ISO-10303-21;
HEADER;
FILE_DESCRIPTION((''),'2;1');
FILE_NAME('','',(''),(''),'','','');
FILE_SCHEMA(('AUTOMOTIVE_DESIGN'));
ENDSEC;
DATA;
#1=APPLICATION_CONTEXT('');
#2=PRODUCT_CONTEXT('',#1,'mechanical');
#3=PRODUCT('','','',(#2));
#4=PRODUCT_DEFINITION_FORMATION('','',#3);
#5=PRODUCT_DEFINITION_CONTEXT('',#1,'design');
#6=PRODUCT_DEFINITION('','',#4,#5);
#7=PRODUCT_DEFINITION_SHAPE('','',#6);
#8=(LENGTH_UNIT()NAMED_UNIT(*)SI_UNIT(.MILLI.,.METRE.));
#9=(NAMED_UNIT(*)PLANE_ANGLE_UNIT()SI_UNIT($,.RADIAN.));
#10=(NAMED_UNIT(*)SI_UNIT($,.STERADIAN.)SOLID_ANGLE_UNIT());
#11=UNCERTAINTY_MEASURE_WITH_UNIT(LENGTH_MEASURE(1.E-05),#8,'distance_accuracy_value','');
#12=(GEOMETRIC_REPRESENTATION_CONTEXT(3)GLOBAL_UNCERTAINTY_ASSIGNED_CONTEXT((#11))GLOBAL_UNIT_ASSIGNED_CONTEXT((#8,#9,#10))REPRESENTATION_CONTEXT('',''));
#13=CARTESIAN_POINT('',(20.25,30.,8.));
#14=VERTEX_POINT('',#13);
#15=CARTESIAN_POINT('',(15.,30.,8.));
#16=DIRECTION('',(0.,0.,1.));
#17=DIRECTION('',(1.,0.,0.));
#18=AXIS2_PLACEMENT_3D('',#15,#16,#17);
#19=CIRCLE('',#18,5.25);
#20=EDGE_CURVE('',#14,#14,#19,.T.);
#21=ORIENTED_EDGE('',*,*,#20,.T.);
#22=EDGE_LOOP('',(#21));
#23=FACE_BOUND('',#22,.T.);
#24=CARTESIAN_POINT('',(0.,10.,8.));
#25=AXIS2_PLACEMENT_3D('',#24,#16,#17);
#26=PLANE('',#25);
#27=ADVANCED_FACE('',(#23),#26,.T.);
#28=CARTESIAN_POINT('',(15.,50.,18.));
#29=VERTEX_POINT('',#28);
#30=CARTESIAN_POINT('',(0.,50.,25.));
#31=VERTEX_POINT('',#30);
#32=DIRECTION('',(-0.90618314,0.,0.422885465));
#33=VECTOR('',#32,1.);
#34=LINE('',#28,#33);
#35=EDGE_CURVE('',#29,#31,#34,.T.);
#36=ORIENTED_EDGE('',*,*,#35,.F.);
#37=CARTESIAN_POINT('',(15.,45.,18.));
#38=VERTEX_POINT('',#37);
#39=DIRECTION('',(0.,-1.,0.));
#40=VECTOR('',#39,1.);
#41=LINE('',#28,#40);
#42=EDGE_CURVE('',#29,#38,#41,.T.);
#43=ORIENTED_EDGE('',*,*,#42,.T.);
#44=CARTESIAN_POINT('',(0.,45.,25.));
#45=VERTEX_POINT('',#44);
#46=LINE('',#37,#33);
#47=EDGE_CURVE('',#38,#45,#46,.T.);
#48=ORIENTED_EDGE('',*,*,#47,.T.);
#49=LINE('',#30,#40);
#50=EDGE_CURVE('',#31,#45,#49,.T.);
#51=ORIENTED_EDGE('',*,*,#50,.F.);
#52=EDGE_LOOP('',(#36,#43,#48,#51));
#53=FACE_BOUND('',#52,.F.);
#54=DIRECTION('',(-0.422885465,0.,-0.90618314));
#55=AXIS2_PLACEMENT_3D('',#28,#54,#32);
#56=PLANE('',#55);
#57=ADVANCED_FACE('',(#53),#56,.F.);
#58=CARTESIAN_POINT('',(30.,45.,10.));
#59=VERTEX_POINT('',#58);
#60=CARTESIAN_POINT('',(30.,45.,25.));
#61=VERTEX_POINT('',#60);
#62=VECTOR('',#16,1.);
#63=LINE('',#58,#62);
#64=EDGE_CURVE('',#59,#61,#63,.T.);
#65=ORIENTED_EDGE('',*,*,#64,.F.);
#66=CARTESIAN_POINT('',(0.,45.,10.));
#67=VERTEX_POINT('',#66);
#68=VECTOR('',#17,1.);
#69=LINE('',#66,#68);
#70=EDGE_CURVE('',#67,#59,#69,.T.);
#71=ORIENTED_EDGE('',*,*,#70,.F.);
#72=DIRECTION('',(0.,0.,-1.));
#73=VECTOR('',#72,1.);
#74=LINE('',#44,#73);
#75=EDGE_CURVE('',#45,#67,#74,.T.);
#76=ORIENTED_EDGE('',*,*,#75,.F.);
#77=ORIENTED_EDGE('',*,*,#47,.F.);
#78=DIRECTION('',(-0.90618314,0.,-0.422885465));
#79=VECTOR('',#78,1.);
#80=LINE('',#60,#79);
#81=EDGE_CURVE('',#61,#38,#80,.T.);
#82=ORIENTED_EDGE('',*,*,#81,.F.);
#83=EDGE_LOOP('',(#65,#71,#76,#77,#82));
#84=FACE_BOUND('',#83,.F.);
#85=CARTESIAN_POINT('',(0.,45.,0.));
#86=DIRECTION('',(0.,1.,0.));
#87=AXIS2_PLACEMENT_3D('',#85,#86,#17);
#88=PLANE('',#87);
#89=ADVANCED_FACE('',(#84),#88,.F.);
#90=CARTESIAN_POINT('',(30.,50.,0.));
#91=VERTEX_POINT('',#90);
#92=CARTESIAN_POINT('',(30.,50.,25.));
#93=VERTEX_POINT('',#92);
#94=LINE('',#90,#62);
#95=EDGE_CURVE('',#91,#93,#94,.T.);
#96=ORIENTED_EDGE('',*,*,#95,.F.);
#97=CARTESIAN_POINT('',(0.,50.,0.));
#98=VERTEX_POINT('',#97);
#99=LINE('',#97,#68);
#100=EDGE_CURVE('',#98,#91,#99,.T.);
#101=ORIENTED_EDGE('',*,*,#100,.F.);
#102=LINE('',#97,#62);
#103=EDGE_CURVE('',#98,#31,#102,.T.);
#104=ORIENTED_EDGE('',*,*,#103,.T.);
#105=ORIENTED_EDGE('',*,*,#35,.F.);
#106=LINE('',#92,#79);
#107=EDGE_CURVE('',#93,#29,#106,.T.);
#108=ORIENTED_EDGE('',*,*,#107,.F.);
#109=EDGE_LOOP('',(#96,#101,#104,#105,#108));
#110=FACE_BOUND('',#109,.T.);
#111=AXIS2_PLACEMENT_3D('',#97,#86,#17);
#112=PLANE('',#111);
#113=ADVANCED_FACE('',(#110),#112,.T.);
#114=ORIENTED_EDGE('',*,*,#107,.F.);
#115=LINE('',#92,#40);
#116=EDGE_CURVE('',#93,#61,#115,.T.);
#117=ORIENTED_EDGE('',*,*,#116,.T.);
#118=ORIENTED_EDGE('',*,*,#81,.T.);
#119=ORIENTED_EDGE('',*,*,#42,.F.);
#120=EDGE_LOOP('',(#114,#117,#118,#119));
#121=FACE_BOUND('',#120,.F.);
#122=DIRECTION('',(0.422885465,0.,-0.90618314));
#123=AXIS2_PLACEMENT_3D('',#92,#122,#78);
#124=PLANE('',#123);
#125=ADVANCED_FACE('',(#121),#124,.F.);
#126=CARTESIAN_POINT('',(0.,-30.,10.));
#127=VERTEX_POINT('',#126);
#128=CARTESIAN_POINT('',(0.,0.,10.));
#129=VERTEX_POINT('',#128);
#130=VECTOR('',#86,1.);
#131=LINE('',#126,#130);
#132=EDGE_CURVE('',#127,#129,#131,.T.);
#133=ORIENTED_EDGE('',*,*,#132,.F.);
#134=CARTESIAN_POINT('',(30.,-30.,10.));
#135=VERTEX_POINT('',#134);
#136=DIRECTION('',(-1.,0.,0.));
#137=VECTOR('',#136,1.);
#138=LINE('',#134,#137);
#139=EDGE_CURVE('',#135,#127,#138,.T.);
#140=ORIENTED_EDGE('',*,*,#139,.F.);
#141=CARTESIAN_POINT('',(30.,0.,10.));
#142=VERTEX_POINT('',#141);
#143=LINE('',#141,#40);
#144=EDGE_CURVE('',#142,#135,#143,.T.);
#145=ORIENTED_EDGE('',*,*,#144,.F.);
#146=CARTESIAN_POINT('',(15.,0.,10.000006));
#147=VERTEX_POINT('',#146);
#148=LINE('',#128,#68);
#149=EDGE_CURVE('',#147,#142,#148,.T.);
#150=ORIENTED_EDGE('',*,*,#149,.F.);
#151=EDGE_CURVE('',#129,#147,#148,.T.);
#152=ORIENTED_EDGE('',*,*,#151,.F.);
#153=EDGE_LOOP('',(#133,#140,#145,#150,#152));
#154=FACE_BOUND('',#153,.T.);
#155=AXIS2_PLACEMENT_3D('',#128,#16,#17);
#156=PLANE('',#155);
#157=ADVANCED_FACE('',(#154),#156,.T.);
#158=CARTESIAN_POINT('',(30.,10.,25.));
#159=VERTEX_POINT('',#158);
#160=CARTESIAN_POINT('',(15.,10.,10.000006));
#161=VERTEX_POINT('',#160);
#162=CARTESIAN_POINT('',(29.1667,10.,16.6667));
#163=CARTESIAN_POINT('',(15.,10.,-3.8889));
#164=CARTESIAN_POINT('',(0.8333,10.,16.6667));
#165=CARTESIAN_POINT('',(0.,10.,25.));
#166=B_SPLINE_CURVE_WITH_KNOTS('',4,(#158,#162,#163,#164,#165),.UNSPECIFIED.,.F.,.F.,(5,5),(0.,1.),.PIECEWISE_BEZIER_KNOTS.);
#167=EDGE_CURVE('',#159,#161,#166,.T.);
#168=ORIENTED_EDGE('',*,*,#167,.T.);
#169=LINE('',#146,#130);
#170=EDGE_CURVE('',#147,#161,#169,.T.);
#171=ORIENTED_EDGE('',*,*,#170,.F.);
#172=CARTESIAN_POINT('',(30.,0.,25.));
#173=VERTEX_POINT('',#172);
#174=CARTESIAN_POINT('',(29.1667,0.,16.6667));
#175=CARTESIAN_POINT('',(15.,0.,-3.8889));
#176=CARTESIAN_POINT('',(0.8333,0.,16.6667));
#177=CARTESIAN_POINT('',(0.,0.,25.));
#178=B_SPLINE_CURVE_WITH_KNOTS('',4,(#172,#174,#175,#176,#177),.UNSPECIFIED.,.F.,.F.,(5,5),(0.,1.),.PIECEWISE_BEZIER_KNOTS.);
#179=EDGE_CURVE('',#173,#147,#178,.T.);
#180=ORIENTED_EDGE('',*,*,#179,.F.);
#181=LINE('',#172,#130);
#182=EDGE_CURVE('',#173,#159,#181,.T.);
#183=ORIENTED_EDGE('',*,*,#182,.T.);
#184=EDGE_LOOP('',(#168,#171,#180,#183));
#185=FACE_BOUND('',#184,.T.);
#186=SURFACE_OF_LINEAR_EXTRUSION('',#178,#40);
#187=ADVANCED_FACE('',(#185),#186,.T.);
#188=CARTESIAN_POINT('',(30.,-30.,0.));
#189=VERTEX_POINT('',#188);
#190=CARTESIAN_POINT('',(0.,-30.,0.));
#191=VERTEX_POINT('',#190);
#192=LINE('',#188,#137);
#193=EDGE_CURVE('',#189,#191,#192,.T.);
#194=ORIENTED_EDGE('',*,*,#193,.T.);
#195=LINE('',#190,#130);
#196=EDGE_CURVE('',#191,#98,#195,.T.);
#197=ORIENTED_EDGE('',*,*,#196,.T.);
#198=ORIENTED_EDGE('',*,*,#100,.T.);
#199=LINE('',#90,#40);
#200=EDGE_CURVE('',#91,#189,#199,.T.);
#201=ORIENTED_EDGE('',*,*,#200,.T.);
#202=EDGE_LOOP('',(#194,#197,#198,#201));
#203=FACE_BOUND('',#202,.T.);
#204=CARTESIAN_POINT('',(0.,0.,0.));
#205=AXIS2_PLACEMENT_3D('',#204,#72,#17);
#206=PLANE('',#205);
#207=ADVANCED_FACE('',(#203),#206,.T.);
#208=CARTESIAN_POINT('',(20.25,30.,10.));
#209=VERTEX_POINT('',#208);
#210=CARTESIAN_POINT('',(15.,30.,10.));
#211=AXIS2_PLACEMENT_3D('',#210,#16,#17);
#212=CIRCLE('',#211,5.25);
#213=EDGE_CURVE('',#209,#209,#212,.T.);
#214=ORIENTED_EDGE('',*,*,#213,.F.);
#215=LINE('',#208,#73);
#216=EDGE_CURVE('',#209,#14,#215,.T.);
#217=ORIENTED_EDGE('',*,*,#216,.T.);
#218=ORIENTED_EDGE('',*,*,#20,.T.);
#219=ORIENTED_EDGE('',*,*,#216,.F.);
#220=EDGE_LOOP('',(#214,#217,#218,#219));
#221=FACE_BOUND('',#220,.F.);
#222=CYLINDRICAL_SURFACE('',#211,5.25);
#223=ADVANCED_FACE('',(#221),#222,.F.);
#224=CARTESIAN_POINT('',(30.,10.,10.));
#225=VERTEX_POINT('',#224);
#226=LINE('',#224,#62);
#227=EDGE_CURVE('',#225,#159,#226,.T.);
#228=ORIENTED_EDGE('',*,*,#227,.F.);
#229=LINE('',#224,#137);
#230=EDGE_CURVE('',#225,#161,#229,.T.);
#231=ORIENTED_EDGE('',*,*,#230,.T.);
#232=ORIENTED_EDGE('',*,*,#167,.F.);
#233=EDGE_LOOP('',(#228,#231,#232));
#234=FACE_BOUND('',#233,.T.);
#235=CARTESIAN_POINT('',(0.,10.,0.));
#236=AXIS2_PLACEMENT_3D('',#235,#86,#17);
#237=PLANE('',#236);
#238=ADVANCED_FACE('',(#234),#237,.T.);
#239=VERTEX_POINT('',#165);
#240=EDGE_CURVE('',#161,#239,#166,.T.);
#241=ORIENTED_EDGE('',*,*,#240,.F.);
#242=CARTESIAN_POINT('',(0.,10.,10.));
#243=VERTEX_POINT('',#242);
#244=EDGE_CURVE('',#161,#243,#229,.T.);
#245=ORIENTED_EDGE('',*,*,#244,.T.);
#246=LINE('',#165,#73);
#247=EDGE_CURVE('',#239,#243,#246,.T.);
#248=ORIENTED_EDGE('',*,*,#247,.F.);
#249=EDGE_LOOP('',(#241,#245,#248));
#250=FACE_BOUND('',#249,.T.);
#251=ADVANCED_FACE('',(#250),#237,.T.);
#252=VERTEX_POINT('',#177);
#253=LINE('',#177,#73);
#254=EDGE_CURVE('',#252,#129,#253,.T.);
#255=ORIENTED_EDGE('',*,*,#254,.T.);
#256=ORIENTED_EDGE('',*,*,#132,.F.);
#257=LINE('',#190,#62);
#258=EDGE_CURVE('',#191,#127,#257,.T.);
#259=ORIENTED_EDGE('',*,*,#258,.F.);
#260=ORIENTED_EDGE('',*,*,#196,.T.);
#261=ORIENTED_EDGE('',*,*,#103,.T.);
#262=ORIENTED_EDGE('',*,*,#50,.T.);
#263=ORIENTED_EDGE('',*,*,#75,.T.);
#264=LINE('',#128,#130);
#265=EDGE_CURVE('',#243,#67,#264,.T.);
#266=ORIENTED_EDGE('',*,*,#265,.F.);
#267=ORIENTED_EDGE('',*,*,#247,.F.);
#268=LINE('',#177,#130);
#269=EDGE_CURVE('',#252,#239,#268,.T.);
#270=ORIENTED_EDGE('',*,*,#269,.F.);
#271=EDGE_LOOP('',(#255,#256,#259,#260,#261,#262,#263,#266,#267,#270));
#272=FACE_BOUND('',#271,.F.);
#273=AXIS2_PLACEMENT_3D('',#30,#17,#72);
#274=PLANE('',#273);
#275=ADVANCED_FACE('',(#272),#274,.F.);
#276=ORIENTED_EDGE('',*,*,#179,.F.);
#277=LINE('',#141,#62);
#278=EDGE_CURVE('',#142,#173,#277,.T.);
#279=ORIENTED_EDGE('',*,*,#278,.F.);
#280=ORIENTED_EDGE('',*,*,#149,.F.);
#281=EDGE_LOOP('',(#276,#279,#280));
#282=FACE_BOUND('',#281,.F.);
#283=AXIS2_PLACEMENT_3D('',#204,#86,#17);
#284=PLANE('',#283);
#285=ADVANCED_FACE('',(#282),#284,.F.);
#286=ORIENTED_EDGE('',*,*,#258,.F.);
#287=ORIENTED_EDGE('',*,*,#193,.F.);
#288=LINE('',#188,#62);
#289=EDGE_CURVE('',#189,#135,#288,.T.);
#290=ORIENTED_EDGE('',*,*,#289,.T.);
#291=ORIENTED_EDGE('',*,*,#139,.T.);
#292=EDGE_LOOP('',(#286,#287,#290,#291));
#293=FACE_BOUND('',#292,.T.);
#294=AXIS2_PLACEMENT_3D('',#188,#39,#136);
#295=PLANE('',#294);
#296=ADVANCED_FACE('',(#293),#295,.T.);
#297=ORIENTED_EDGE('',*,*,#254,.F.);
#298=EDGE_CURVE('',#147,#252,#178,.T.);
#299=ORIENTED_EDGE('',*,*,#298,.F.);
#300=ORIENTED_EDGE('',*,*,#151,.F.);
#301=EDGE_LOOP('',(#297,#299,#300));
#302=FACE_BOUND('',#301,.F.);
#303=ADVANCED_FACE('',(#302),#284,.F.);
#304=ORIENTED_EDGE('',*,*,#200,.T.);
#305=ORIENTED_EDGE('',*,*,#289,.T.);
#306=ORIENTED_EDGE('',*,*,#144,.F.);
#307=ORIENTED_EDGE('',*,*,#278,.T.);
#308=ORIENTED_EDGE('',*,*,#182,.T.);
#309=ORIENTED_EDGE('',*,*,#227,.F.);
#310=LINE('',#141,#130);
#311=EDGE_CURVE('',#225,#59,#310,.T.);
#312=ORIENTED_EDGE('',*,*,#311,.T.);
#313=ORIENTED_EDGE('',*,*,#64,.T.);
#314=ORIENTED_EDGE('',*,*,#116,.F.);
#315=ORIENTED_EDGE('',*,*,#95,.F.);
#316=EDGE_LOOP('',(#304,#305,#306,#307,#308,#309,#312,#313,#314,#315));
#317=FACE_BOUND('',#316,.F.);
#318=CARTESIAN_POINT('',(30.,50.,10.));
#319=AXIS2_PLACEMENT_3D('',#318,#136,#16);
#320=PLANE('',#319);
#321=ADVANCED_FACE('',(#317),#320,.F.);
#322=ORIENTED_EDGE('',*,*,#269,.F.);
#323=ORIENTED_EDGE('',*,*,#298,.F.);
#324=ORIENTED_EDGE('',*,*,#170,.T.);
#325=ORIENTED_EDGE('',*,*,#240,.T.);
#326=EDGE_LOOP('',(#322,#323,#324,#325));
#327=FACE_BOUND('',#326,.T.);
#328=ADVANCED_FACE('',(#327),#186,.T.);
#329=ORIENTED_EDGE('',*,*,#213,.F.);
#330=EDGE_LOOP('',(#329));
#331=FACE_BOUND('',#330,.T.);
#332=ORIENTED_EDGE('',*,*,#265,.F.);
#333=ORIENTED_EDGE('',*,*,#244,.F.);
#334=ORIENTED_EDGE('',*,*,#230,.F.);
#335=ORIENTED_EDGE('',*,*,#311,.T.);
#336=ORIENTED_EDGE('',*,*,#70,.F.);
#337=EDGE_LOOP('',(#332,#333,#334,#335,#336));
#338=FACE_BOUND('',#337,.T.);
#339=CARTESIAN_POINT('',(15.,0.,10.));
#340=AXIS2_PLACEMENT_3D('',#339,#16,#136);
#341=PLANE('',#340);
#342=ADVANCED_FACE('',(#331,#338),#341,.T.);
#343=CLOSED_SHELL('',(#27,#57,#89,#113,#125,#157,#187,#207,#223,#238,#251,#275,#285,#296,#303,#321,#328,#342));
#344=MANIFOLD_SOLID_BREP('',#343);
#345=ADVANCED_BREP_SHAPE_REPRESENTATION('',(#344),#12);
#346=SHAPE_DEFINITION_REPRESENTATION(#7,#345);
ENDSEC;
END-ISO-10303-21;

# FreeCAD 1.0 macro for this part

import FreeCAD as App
import Part
import Sketcher


def add_polygon(sketch, points):
    """Adds a closed chain of lines whose ends are joined by coincident constraints."""
    first, n = sketch.GeometryCount, len(points)
    for a, b in zip(points, points[1:] + points[:1]):
        sketch.addGeometry(Part.LineSegment(App.Vector(*a, 0), App.Vector(*b, 0)), False)
    for i in range(n):
        sketch.addConstraint(Sketcher.Constraint("Coincident", first + i, 2, first + (i + 1) % n, 1))

doc = App.newDocument("Part")
body = doc.addObject("PartDesign::Body", "Body")
body.AllowCompound = True

sketch1 = doc.addObject("Sketcher::SketchObject", "Sketch")
body.addObject(sketch1)
sketch1.AttachmentSupport = (doc.XY_Plane, [""])
sketch1.MapMode = "FlatFace"
add_polygon(sketch1, [(30, 0), (0, 0), (0, -30), (30, -30)])
sketch1.addConstraint([
    Sketcher.Constraint("Horizontal", 0),
    Sketcher.Constraint("Vertical", 1),
    Sketcher.Constraint("Horizontal", 2),
    Sketcher.Constraint("Vertical", 3),
    Sketcher.Constraint("Coincident", 0, 2, -1, 1),
    Sketcher.Constraint("Equal", 2, 1),
    Sketcher.Constraint("DistanceX", 0, 2, 0, 1, 30.0),
])
pad1 = doc.addObject("PartDesign::Pad", "Pad")
body.addObject(pad1)
pad1.Profile = sketch1
pad1.Length = 10

sketch2 = doc.addObject("Sketcher::SketchObject", "Sketch001")
body.addObject(sketch2)
sketch2.AttachmentSupport = (doc.XZ_Plane, [""])
sketch2.MapMode = "FlatFace"
sketch2.addGeometry([
    Part.LineSegment(App.Vector(30, 25, 0), App.Vector(30, 10, 0)),
    Part.LineSegment(App.Vector(30, 10, 0), App.Vector(15, 10, 0)),
    Part.BSplineCurve([App.Vector(30, 25, 0), App.Vector(29.58335, 20.83335, 0), App.Vector(25.83335, 13.611125, 0), App.Vector(20.416675, 10.000012, 0), App.Vector(15, 10.000013, 0)], [5, 5], [0, 0.5], False, 4, [1, 1, 1, 1, 1], False),
    Part.BSplineCurve([App.Vector(15, 10.000013, 0), App.Vector(9.583325, 10.000013, 0), App.Vector(4.16665, 13.611125, 0), App.Vector(0.41665, 20.83335, 0), App.Vector(0, 25, 0)], [5, 5], [0.5, 1], False, 4, [1, 1, 1, 1, 1], False),
    Part.LineSegment(App.Vector(15, 10, 0), App.Vector(0, 10, 0)),
    Part.LineSegment(App.Vector(0, 10, 0), App.Vector(0, 25, 0)),
], False)
sketch2.addConstraint([
    Sketcher.Constraint("Block", 2),
    Sketcher.Constraint("Block", 3),
    Sketcher.Constraint("Coincident", 0, 2, 1, 1),
    Sketcher.Constraint("Coincident", 1, 2, 2, 2),
    Sketcher.Constraint("Coincident", 2, 1, 0, 1),
    Sketcher.Constraint("Coincident", 3, 1, 4, 1),
    Sketcher.Constraint("Coincident", 4, 2, 5, 1),
    Sketcher.Constraint("Coincident", 5, 2, 3, 2),
    Sketcher.Constraint("Vertical", 0),
    Sketcher.Constraint("Horizontal", 1),
    Sketcher.Constraint("Horizontal", 4),
    Sketcher.Constraint("Vertical", 5),
])
pad2 = doc.addObject("PartDesign::Pad", "Pad001")
body.addObject(pad2)
pad2.Profile = sketch2
pad2.Length = 10
pad2.Reversed = True

sketch3 = doc.addObject("Sketcher::SketchObject", "Sketch002")
body.addObject(sketch3)
sketch3.AttachmentSupport = (doc.XZ_Plane, [""])
sketch3.MapMode = "FlatFace"
add_polygon(sketch3, [(30, 0), (0, 0), (0, 10), (30, 10)])
sketch3.addConstraint([
    Sketcher.Constraint("Horizontal", 0),
    Sketcher.Constraint("Vertical", 1),
    Sketcher.Constraint("Horizontal", 2),
    Sketcher.Constraint("Vertical", 3),
    Sketcher.Constraint("Coincident", 0, 2, -1, 1),
    Sketcher.Constraint("DistanceX", 0, 2, 0, 1, 30.0),
    Sketcher.Constraint("DistanceY", 1, 1, 1, 2, 10.0),
])
pad3 = doc.addObject("PartDesign::Pad", "Pad002")
body.addObject(pad3)
pad3.Profile = sketch3
pad3.Length = 50
pad3.Reversed = True

sketch4 = doc.addObject("Sketcher::SketchObject", "Sketch003")
body.addObject(sketch4)
sketch4.AttachmentSupport = (doc.XZ_Plane, [""])
sketch4.MapMode = "FlatFace"
sketch4.AttachmentOffset = App.Placement(App.Vector(0, 0, -50), App.Rotation())
add_polygon(sketch4, [(30, 25), (30, 10), (0, 10), (0, 25), (15, 18)])
sketch4.addConstraint([
    Sketcher.Constraint("Vertical", 0),
    Sketcher.Constraint("Horizontal", 1),
    Sketcher.Constraint("Vertical", 2),
    Sketcher.Constraint("PointOnObject", 1, 2, -2),
    Sketcher.Constraint("Horizontal", 2, 2, 4, 2),
    Sketcher.Constraint("Equal", 3, 4),
    Sketcher.Constraint("DistanceY", 0, 2, 0, 1, 15.0),
    Sketcher.Constraint("DistanceX", -1, 1, 3, 2, 15.0),
    Sketcher.Constraint("DistanceY", 0, 2, 3, 2, 8.0),
    Sketcher.Constraint("DistanceY", -1, 1, 0, 2, 10.0),
])
pad4 = doc.addObject("PartDesign::Pad", "Pad003")
body.addObject(pad4)
pad4.Profile = sketch4
pad4.Length = 5

sketch5 = doc.addObject("Sketcher::SketchObject", "Sketch004")
body.addObject(sketch5)
sketch5.AttachmentSupport = (doc.XY_Plane, [""])
sketch5.MapMode = "FlatFace"
sketch5.AttachmentOffset = App.Placement(App.Vector(0, 0, 10), App.Rotation())
sketch5.addGeometry(Part.Circle(App.Vector(15, 30, 0), App.Vector(0, 0, 1), 5.25), False)
sketch5.addConstraint([
    Sketcher.Constraint("Diameter", 0, 10.5),
    Sketcher.Constraint("DistanceX", -1, 1, 0, 3, 15.0),
    Sketcher.Constraint("DistanceY", -1, 1, 0, 3, 30.0),
])
pocket1 = doc.addObject("PartDesign::Pocket", "Pocket")
body.addObject(pocket1)
pocket1.Profile = sketch5
pocket1.Length = 2

doc.recompute()
